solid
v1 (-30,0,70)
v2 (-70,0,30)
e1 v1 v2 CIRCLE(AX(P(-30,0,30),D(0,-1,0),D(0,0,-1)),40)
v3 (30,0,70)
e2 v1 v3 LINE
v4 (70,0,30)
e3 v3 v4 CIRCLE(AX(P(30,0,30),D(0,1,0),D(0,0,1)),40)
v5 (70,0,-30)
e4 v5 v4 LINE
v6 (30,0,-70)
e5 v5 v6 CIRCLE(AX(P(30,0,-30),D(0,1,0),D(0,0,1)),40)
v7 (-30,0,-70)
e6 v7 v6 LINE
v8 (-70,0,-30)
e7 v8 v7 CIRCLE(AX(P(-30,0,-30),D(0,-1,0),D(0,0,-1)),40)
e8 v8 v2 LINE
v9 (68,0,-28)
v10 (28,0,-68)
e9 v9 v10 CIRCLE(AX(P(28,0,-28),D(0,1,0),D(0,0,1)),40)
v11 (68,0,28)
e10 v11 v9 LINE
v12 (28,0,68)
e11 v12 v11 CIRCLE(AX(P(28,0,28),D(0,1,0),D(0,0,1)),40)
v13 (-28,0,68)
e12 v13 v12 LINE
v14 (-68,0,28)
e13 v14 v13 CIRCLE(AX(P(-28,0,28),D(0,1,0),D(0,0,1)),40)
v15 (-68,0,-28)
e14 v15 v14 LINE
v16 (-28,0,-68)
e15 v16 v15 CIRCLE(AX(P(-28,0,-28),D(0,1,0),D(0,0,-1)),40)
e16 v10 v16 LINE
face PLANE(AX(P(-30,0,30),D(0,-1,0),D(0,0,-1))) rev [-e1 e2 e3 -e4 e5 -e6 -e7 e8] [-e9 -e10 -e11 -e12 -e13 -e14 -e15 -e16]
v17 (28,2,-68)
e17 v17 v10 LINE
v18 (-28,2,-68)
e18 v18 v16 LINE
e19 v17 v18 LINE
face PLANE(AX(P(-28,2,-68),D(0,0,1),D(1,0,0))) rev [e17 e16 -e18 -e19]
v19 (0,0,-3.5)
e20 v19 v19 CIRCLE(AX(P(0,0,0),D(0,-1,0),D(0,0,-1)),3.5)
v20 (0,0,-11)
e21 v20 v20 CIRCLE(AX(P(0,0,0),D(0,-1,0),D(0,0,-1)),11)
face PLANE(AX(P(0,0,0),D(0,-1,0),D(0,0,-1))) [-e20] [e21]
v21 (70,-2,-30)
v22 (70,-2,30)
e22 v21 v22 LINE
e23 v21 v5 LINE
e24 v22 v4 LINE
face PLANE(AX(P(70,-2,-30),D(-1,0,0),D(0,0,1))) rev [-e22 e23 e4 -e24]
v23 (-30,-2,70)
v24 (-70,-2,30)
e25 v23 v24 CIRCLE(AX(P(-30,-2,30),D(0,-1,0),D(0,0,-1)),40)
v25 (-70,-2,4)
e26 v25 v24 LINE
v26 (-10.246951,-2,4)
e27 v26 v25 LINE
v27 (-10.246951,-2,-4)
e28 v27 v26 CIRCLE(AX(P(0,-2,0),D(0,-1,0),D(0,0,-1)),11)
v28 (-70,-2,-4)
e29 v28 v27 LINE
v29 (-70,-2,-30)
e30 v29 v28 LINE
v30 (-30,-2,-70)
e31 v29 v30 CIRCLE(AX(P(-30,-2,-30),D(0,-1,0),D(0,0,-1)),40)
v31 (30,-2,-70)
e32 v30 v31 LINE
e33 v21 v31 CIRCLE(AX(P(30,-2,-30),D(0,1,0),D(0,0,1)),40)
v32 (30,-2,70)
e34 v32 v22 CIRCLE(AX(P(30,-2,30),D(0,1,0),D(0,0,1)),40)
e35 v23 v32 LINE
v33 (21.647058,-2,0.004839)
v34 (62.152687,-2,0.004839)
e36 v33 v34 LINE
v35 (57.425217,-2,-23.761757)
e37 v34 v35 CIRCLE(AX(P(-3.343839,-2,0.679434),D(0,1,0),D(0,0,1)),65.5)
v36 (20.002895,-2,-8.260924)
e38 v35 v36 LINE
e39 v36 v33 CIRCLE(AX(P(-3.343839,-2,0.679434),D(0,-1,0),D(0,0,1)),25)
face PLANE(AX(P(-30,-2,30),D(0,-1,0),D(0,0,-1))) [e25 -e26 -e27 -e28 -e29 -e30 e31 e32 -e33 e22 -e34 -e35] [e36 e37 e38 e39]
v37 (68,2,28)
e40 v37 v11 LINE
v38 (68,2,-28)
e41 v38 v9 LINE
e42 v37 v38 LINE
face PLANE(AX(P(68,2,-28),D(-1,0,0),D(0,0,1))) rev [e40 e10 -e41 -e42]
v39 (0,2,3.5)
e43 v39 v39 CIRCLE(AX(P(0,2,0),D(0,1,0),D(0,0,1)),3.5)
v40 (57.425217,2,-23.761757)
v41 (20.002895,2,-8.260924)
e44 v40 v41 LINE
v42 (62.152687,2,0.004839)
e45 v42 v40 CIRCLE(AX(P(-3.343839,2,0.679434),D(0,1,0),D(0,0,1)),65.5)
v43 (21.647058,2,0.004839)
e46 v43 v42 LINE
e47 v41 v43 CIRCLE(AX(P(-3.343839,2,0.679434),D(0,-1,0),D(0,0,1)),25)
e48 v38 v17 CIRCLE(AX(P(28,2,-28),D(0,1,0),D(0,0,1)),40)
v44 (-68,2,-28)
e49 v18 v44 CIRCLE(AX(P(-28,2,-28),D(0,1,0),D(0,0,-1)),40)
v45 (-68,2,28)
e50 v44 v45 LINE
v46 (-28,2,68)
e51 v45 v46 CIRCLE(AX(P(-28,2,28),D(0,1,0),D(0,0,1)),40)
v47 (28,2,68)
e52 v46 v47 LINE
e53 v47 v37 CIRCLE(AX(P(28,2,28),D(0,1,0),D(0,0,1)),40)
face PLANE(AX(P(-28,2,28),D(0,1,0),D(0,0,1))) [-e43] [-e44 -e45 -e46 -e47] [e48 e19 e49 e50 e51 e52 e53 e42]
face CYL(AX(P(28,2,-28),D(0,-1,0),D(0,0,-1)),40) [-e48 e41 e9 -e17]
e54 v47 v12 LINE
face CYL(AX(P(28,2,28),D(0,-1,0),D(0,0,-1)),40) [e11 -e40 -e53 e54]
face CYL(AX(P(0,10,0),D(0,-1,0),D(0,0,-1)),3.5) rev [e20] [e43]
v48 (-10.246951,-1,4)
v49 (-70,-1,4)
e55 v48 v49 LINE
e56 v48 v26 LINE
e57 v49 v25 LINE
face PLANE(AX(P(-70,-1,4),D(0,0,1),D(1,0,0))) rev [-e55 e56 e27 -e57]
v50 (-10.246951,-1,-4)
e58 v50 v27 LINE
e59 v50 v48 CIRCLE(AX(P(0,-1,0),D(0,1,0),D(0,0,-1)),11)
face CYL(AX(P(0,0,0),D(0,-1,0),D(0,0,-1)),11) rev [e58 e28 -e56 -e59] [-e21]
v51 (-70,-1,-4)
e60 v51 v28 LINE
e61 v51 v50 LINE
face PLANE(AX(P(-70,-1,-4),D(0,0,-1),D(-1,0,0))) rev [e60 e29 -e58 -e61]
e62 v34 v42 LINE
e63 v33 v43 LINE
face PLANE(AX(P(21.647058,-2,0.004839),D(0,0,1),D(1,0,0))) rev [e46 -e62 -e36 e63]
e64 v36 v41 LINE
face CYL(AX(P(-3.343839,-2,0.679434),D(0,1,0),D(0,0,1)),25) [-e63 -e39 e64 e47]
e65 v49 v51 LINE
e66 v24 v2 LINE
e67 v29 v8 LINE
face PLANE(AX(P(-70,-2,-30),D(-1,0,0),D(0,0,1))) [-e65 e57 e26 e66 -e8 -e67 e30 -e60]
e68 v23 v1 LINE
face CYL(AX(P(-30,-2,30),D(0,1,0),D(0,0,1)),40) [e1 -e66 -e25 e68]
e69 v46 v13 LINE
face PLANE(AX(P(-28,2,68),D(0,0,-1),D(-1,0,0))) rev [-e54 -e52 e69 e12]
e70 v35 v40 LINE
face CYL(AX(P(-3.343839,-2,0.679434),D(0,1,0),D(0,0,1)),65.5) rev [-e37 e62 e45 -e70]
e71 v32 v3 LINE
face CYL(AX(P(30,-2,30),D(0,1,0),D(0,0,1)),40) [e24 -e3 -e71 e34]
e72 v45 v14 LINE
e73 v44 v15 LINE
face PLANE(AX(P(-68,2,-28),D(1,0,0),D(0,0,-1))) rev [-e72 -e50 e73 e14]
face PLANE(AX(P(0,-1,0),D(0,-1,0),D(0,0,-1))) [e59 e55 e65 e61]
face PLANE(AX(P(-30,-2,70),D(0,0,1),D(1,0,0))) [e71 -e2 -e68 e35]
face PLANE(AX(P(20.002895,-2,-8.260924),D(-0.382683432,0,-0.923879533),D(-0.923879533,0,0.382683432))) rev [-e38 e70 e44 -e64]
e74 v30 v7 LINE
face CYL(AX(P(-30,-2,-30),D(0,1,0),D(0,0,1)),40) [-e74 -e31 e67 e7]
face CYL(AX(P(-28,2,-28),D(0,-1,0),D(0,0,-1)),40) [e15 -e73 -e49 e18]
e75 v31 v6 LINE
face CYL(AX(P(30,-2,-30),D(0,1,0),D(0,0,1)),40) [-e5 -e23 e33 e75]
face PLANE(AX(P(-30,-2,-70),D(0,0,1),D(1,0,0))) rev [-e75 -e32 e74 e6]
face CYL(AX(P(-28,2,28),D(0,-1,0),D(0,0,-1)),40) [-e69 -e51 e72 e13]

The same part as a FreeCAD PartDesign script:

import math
import FreeCAD as App
import Part
import Sketcher
from FreeCAD import Vector
Q = App.Units.Quantity

doc = App.newDocument("Part")
body = doc.addObject("PartDesign::Body", "Body")

# Sketch on XZ plane
sketch1 = body.newObject("Sketcher::SketchObject", "Sketch")
sketch1.AttachmentSupport = (doc.getObject("XZ_Plane"), [""])
sketch1.MapMode = "FlatFace"
sketch1.addGeometry(Part.LineSegment(Vector(30, -70, 0), Vector(-30, -70, 0)), False)
sketch1.addGeometry(Part.ArcOfCircle(Part.Circle(Vector(-30, -30, 0), Vector(0, 0, 1), 40), math.radians(-180), math.radians(-90)), False)
sketch1.addGeometry(Part.LineSegment(Vector(-70, -30, 0), Vector(-70, 30, 0)), False)
sketch1.addGeometry(Part.ArcOfCircle(Part.Circle(Vector(-30, 30, 0), Vector(0, 0, 1), 40), math.radians(90), math.radians(180)), False)
sketch1.addGeometry(Part.LineSegment(Vector(-30, 70, 0), Vector(30, 70, 0)), False)
sketch1.addGeometry(Part.ArcOfCircle(Part.Circle(Vector(30, 30, 0), Vector(0, 0, 1), 40), math.radians(0), math.radians(90)), False)
sketch1.addGeometry(Part.LineSegment(Vector(70, 30, 0), Vector(70, -30, 0)), False)
sketch1.addGeometry(Part.ArcOfCircle(Part.Circle(Vector(30, -30, 0), Vector(0, 0, 1), 40), math.radians(-90), math.radians(0)), False)
sketch1.addConstraint(Sketcher.Constraint("Tangent", 0, 2, 1, 2))
sketch1.addConstraint(Sketcher.Constraint("Tangent", 1, 1, 2, 1))
sketch1.addConstraint(Sketcher.Constraint("Tangent", 2, 2, 3, 2))
sketch1.addConstraint(Sketcher.Constraint("Tangent", 3, 1, 4, 1))
sketch1.addConstraint(Sketcher.Constraint("Tangent", 4, 2, 5, 2))
sketch1.addConstraint(Sketcher.Constraint("Tangent", 5, 1, 6, 1))
sketch1.addConstraint(Sketcher.Constraint("Tangent", 6, 2, 7, 2))
sketch1.addConstraint(Sketcher.Constraint("Tangent", 7, 1, 0, 1))
sketch1.addConstraint(Sketcher.Constraint("Horizontal", 0))
sketch1.addConstraint(Sketcher.Constraint("Vertical", 2))
sketch1.addConstraint(Sketcher.Constraint("Horizontal", 4))
sketch1.addConstraint(Sketcher.Constraint("Vertical", 6))
sketch1.addConstraint(Sketcher.Constraint("Equal", 1, 3))
sketch1.addConstraint(Sketcher.Constraint("Equal", 3, 5))
sketch1.addConstraint(Sketcher.Constraint("Equal", 5, 7))
sketch1.addConstraint(Sketcher.Constraint("Symmetric", 1, 3, 5, 3, -1, 1))
sketch1.addConstraint(Sketcher.Constraint("Equal", 4, 2))
sketch1.addConstraint(Sketcher.Constraint("Radius", 1, Q("40 mm")))
sketch1.addConstraint(Sketcher.Constraint("DistanceX", 0, 2, 0, 1, Q("60 mm")))
pad1 = body.newObject("PartDesign::Pad", "Pad")
pad1.Profile = sketch1
pad1.Length = 2

# Sketch on XZ plane
sketch2 = body.newObject("Sketcher::SketchObject", "Sketch001")
sketch2.AttachmentSupport = (doc.getObject("XZ_Plane"), [""])
sketch2.MapMode = "FlatFace"
sketch2.addGeometry(Part.LineSegment(Vector(28, -68, 0), Vector(-28, -68, 0)), False)
sketch2.addGeometry(Part.ArcOfCircle(Part.Circle(Vector(-28, -28, 0), Vector(0, 0, 1), 40), math.radians(-180), math.radians(-90)), False)
sketch2.addGeometry(Part.LineSegment(Vector(-68, -28, 0), Vector(-68, 28, 0)), False)
sketch2.addGeometry(Part.ArcOfCircle(Part.Circle(Vector(-28, 28, 0), Vector(0, 0, 1), 40), math.radians(90), math.radians(180)), False)
sketch2.addGeometry(Part.LineSegment(Vector(-28, 68, 0), Vector(28, 68, 0)), False)
sketch2.addGeometry(Part.ArcOfCircle(Part.Circle(Vector(28, 28, 0), Vector(0, 0, 1), 40), math.radians(0), math.radians(90)), False)
sketch2.addGeometry(Part.LineSegment(Vector(68, 28, 0), Vector(68, -28, 0)), False)
sketch2.addGeometry(Part.ArcOfCircle(Part.Circle(Vector(28, -28, 0), Vector(0, 0, 1), 40), math.radians(-90), math.radians(0)), False)
sketch2.addConstraint(Sketcher.Constraint("Tangent", 0, 2, 1, 2))
sketch2.addConstraint(Sketcher.Constraint("Tangent", 1, 1, 2, 1))
sketch2.addConstraint(Sketcher.Constraint("Tangent", 2, 2, 3, 2))
sketch2.addConstraint(Sketcher.Constraint("Tangent", 3, 1, 4, 1))
sketch2.addConstraint(Sketcher.Constraint("Tangent", 4, 2, 5, 2))
sketch2.addConstraint(Sketcher.Constraint("Tangent", 5, 1, 6, 1))
sketch2.addConstraint(Sketcher.Constraint("Tangent", 6, 2, 7, 2))
sketch2.addConstraint(Sketcher.Constraint("Tangent", 7, 1, 0, 1))
sketch2.addConstraint(Sketcher.Constraint("Horizontal", 0))
sketch2.addConstraint(Sketcher.Constraint("Vertical", 2))
sketch2.addConstraint(Sketcher.Constraint("Horizontal", 4))
sketch2.addConstraint(Sketcher.Constraint("Vertical", 6))
sketch2.addConstraint(Sketcher.Constraint("Equal", 1, 3))
sketch2.addConstraint(Sketcher.Constraint("Equal", 3, 5))
sketch2.addConstraint(Sketcher.Constraint("Equal", 5, 7))
sketch2.addConstraint(Sketcher.Constraint("Symmetric", 1, 3, 5, 3, -1, 1))
sketch2.addConstraint(Sketcher.Constraint("Equal", 4, 2))
sketch2.addConstraint(Sketcher.Constraint("Radius", 1, Q("40 mm")))
sketch2.addConstraint(Sketcher.Constraint("DistanceX", 0, 2, 0, 1, Q("56 mm")))
pad2 = body.newObject("PartDesign::Pad", "Pad001")
pad2.Profile = sketch2
pad2.Length = 2
pad2.Reversed = True

# Sketch on XZ plane
sketch3 = body.newObject("Sketcher::SketchObject", "Sketch002")
sketch3.AttachmentSupport = (doc.getObject("XZ_Plane"), [""])
sketch3.MapMode = "FlatFace"
sketch3.AttachmentOffset = App.Placement(Vector(0, 0, 2), App.Rotation())
sketch3.addGeometry(Part.Circle(Vector(0, 0, 0), Vector(0, 0, 1), 11), False)
sketch3.addConstraint(Sketcher.Constraint("Coincident", 0, 3, -1, 1))
sketch3.addConstraint(Sketcher.Constraint("Diameter", 0, Q("22 mm")))
pocket1 = body.newObject("PartDesign::Pocket", "Pocket")
pocket1.Profile = sketch3
pocket1.Length = 2

# Sketch on XZ plane
sketch4 = body.newObject("Sketcher::SketchObject", "Sketch003")
sketch4.AttachmentSupport = (doc.getObject("XZ_Plane"), [""])
sketch4.MapMode = "FlatFace"
sketch4.addGeometry(Part.Circle(Vector(0, 0, 0), Vector(0, 0, 1), 2.6), False)
sketch4.addConstraint(Sketcher.Constraint("Coincident", 0, 3, -1, 1))
sketch4.addConstraint(Sketcher.Constraint("Diameter", 0, Q("5.207429 mm")))
pocket2 = body.newObject("PartDesign::Pocket", "Pocket001")
pocket2.Profile = sketch4
pocket2.Type = "ThroughAll"
pocket2.Midplane = True

# Sketch on XZ plane
sketch5 = body.newObject("Sketcher::SketchObject", "Sketch004")
sketch5.AttachmentSupport = (doc.getObject("XZ_Plane"), [""])
sketch5.MapMode = "FlatFace"
sketch5.addGeometry(Part.Circle(Vector(13, -13, 0), Vector(0, 0, 1), 1.4), False)
sketch5.addGeometry(Part.Circle(Vector(13, 13, 0), Vector(0, 0, 1), 1.4), False)
sketch5.addGeometry(Part.Circle(Vector(-13, 13, 0), Vector(0, 0, 1), 1.4), False)
sketch5.addGeometry(Part.Circle(Vector(-13, -13, 0), Vector(0, 0, 1), 1.4), False)
sketch5.addConstraint(Sketcher.Constraint("Equal", 0, 1))
sketch5.addConstraint(Sketcher.Constraint("Equal", 1, 2))
sketch5.addConstraint(Sketcher.Constraint("Equal", 2, 3))
sketch5.addConstraint(Sketcher.Constraint("Symmetric", 0, 3, 2, 3, -1, 1))
sketch5.addConstraint(Sketcher.Constraint("Symmetric", 1, 3, 3, 3, -1, 1))
sketch5.addConstraint(Sketcher.Constraint("Symmetric", 1, 3, 2, 3, -2))
sketch5.addConstraint(Sketcher.Constraint("Diameter", 0, Q("2.8 mm")))
sketch5.addConstraint(Sketcher.Constraint("DistanceX", -1, 1, 0, 3, Q("13 mm")))
sketch5.addConstraint(Sketcher.Constraint("DistanceY", 0, 3, -1, 1, Q("13 mm")))
pad3 = body.newObject("PartDesign::Pad", "Pad002")
pad3.Profile = sketch5
pad3.Length = 4

# Sketch on XZ plane
sketch6 = body.newObject("Sketcher::SketchObject", "Sketch005")
sketch6.AttachmentSupport = (doc.getObject("XZ_Plane"), [""])
sketch6.MapMode = "FlatFace"
sketch6.AttachmentOffset = App.Placement(Vector(0, 0, -2), App.Rotation())
sketch6.addGeometry(Part.LineSegment(Vector(57.425217, -23.761757, 0), Vector(20.002895, -8.260924, 0)), False)
sketch6.addGeometry(Part.ArcOfCircle(Part.Circle(Vector(-3.343839, 0.679434, 0), Vector(0, 0, 1), 25), math.radians(-20.953755), math.radians(-1.546245)), False)
sketch6.addGeometry(Part.LineSegment(Vector(21.647058, 0.004839, 0), Vector(62.152687, 0.004839, 0)), False)
sketch6.addGeometry(Part.ArcOfCircle(Part.Circle(Vector(-3.343839, 0.679434, 0), Vector(0, 0, 1), 65.5), math.radians(-21.909892), math.radians(-0.590108)), False)
sketch6.addConstraint(Sketcher.Constraint("Coincident", 0, 2, 1, 1))
sketch6.addConstraint(Sketcher.Constraint("Coincident", 1, 2, 2, 1))
sketch6.addConstraint(Sketcher.Constraint("Coincident", 2, 2, 3, 2))
sketch6.addConstraint(Sketcher.Constraint("Coincident", 3, 1, 0, 1))
sketch6.addConstraint(Sketcher.Constraint("Horizontal", 2))
sketch6.addConstraint(Sketcher.Constraint("Coincident", 3, 3, 1, 3))
sketch6.addConstraint(Sketcher.Constraint("Radius", 1, Q("25 mm")))
sketch6.addConstraint(Sketcher.Constraint("Radius", 3, Q("65.5 mm")))
sketch6.addConstraint(Sketcher.Constraint("DistanceX", 2, 1, 2, 2, Q("40.505629 mm")))
sketch6.addConstraint(Sketcher.Constraint("Distance", 0, Q("40.505629 mm")))
sketch6.addConstraint(Sketcher.Constraint("DistanceX", 1, 3, -1, 1, Q("3.343839 mm")))
sketch6.addConstraint(Sketcher.Constraint("DistanceY", -1, 1, 1, 2, Q("0.004839 mm")))
sketch6.addConstraint(Sketcher.Constraint("DistanceY", 0, 2, 3, 3, Q("8.940358 mm")))
pocket3 = body.newObject("PartDesign::Pocket", "Pocket002")
pocket3.Profile = sketch6
pocket3.Length = 4
pocket3.Reversed = True

# Sketch on XZ plane
sketch7 = body.newObject("Sketcher::SketchObject", "Sketch006")
sketch7.AttachmentSupport = (doc.getObject("XZ_Plane"), [""])
sketch7.MapMode = "FlatFace"
sketch7.AttachmentOffset = App.Placement(Vector(0, 0, 2), App.Rotation())
sketch7.addGeometry(Part.Circle(Vector(13, 13, 0), Vector(0, 0, 1), 1.4), False)
sketch7.addGeometry(Part.Circle(Vector(13, -13, 0), Vector(0, 0, 1), 1.4), False)
sketch7.addGeometry(Part.Circle(Vector(-13, -13, 0), Vector(0, 0, 1), 1.4), False)
sketch7.addGeometry(Part.Circle(Vector(-13, 13, 0), Vector(0, 0, 1), 1.4), False)
sketch7.addConstraint(Sketcher.Constraint("Equal", 0, 1))
sketch7.addConstraint(Sketcher.Constraint("Equal", 1, 2))
sketch7.addConstraint(Sketcher.Constraint("Equal", 2, 3))
sketch7.addConstraint(Sketcher.Constraint("Symmetric", 0, 3, 2, 3, -1, 1))
sketch7.addConstraint(Sketcher.Constraint("Symmetric", 1, 3, 3, 3, -1, 1))
sketch7.addConstraint(Sketcher.Constraint("Symmetric", 1, 3, 2, 3, -2))
sketch7.addConstraint(Sketcher.Constraint("Diameter", 0, Q("2.8 mm")))
sketch7.addConstraint(Sketcher.Constraint("DistanceX", -1, 1, 0, 3, Q("13 mm")))
sketch7.addConstraint(Sketcher.Constraint("DistanceY", -1, 1, 0, 3, Q("13 mm")))
pocket4 = body.newObject("PartDesign::Pocket", "Pocket003")
pocket4.Profile = sketch7
pocket4.Length = 2
pocket4.Reversed = True

# Sketch on XZ plane
sketch8 = body.newObject("Sketcher::SketchObject", "Sketch007")
sketch8.AttachmentSupport = (doc.getObject("XZ_Plane"), [""])
sketch8.MapMode = "FlatFace"
sketch8.AttachmentOffset = App.Placement(Vector(0, 0, 2), App.Rotation())
sketch8.addGeometry(Part.LineSegment(Vector(-10, 4, 0), Vector(-70, 4, 0)), False)
sketch8.addGeometry(Part.LineSegment(Vector(-70, 4, 0), Vector(-70, -4, 0)), False)
sketch8.addGeometry(Part.LineSegment(Vector(-70, -4, 0), Vector(-10, -4, 0)), False)
sketch8.addGeometry(Part.ArcOfCircle(Part.Circle(Vector(0, 0, 0), Vector(0, 0, 1), 11), math.radians(159), math.radians(201)), False)
sketch8.addConstraint(Sketcher.Constraint("Coincident", 0, 2, 1, 1))
sketch8.addConstraint(Sketcher.Constraint("Coincident", 1, 2, 2, 1))
sketch8.addConstraint(Sketcher.Constraint("Coincident", 2, 2, 3, 2))
sketch8.addConstraint(Sketcher.Constraint("Coincident", 3, 1, 0, 1))
sketch8.addConstraint(Sketcher.Constraint("Horizontal", 0))
sketch8.addConstraint(Sketcher.Constraint("Vertical", 1))
sketch8.addConstraint(Sketcher.Constraint("Horizontal", 2))
sketch8.addConstraint(Sketcher.Constraint("Coincident", 3, 3, -1, 1))
sketch8.addConstraint(Sketcher.Constraint("Vertical", 2, 2, 3, 1))
sketch8.addConstraint(Sketcher.Constraint("Radius", 3, Q("11 mm")))
sketch8.addConstraint(Sketcher.Constraint("DistanceY", 1, 2, 1, 1, Q("8 mm")))
sketch8.addConstraint(Sketcher.Constraint("DistanceX", 0, 2, -1, 1, Q("70 mm")))
pocket5 = body.newObject("PartDesign::Pocket", "Pocket004")
pocket5.Profile = sketch8
pocket5.Length = 1

# Sketch on XZ plane
sketch9 = body.newObject("Sketcher::SketchObject", "Sketch008")
sketch9.AttachmentSupport = (doc.getObject("XZ_Plane"), [""])
sketch9.MapMode = "FlatFace"
sketch9.addGeometry(Part.Circle(Vector(0, 0, 0), Vector(0, 0, 1), 3.5), False)
sketch9.addConstraint(Sketcher.Constraint("Coincident", 0, 3, -1, 1))
sketch9.addConstraint(Sketcher.Constraint("Diameter", 0, Q("7 mm")))
pocket6 = body.newObject("PartDesign::Pocket", "Pocket005")
pocket6.Profile = sketch9
pocket6.Length = 10

doc.recompute()
